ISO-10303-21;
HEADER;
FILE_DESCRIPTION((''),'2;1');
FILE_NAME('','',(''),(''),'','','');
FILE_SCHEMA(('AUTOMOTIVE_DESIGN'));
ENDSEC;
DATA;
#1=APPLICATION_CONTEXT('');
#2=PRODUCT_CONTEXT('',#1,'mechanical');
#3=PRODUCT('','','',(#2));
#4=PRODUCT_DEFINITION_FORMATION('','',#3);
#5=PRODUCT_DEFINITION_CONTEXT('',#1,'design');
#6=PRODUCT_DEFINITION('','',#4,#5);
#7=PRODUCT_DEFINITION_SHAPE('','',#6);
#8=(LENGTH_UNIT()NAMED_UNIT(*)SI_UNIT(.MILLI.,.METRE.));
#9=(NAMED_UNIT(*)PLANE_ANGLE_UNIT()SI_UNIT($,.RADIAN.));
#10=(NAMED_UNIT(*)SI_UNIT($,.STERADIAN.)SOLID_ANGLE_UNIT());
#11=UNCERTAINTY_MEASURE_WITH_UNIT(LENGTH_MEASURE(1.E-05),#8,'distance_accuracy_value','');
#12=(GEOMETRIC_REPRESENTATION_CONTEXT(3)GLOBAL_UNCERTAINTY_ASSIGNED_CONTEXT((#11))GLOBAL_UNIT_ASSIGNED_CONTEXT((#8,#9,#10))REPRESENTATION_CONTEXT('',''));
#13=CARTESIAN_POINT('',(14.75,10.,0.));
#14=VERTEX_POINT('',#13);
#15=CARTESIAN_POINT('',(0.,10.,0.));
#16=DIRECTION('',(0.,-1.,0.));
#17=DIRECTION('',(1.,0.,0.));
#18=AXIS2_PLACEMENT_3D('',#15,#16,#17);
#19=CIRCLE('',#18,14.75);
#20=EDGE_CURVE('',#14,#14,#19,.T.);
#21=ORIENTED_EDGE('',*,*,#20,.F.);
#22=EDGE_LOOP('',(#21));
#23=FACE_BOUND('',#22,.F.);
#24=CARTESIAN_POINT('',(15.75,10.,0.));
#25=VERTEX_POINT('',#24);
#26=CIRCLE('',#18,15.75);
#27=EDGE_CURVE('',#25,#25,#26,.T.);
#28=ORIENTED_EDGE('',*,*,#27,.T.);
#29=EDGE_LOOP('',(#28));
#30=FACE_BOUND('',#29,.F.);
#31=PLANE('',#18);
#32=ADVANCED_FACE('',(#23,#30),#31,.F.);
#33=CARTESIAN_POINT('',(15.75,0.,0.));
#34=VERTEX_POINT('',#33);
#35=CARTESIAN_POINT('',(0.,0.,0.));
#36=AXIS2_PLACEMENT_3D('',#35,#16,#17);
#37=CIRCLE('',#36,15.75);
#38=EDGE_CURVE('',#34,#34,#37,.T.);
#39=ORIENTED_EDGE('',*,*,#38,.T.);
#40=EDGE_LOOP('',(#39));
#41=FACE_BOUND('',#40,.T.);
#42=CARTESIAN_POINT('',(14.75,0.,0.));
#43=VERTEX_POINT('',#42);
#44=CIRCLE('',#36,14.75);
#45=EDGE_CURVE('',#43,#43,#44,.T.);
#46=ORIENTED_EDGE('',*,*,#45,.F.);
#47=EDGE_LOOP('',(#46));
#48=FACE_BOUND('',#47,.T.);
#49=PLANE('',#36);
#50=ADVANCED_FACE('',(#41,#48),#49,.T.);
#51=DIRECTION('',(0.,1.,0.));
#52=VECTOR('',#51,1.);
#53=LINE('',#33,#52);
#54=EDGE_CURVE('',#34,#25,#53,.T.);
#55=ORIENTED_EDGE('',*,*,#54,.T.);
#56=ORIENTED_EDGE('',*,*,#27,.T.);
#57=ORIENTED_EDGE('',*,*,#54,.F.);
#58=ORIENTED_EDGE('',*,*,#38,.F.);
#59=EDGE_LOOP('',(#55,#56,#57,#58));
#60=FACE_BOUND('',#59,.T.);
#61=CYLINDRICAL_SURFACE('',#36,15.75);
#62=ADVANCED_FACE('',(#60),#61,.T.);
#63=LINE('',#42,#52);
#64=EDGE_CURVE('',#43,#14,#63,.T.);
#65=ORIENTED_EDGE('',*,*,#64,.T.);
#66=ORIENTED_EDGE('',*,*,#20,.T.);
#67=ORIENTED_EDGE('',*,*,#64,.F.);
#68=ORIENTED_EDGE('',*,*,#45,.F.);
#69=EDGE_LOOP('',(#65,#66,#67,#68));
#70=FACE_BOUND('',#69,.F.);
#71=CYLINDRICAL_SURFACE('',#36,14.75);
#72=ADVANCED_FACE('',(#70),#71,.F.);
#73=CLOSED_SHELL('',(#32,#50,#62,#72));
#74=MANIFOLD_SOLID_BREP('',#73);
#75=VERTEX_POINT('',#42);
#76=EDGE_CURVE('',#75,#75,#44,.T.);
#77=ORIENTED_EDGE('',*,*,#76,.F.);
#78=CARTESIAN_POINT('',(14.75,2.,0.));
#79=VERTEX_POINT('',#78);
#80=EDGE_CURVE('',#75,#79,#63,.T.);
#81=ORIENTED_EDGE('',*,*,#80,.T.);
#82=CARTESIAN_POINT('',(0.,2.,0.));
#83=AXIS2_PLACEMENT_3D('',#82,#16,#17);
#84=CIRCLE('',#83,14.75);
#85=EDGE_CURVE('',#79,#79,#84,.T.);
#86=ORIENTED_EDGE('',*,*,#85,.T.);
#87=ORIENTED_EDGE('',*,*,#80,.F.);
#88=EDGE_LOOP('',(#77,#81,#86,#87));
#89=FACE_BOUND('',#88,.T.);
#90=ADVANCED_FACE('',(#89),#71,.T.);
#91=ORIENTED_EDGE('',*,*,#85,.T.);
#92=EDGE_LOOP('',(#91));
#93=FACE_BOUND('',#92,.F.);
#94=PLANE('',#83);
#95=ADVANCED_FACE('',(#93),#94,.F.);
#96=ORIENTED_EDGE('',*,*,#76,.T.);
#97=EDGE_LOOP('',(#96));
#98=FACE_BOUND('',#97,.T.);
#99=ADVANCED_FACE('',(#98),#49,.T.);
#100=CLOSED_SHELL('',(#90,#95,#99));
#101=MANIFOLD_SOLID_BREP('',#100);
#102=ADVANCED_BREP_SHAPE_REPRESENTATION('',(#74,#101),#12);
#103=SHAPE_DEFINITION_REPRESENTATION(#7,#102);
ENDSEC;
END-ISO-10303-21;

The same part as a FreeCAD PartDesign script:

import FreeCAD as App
import Part
import Sketcher
from FreeCAD import Vector

doc = App.newDocument("Part")
body = doc.addObject("PartDesign::Body", "Body")

# Sketch on XZ plane
sketch1 = doc.addObject("Sketcher::SketchObject", "Sketch")
body.addObject(sketch1)
sketch1.AttachmentSupport = (doc.XZ_Plane, [""])
sketch1.MapMode = "FlatFace"
sketch1.addGeometry(Part.Circle(Vector(0, 0, 0), Vector(0, 0, 1), 16), False)
sketch1.addGeometry(Part.Circle(Vector(0, 0, 0), Vector(0, 0, 1), 15), False)
sketch1.addConstraint(Sketcher.Constraint("Coincident", 0, 3, -1, 1))
sketch1.addConstraint(Sketcher.Constraint("Coincident", 1, 3, -1, 1))
sketch1.addConstraint(Sketcher.Constraint("Diameter", 0, 31.5))
sketch1.addConstraint(Sketcher.Constraint("Diameter", 1, 29.5))
pad1 = doc.addObject("PartDesign::Pad", "Pad")
body.addObject(pad1)
pad1.Profile = sketch1
pad1.Length = 10
pad1.Reversed = True

# Sketch on XZ plane
sketch2 = doc.addObject("Sketcher::SketchObject", "Sketch001")
body.addObject(sketch2)
sketch2.AttachmentSupport = (doc.XZ_Plane, [""])
sketch2.MapMode = "FlatFace"
sketch2.addGeometry(Part.Circle(Vector(0, 0, 0), Vector(0, 0, 1), 15), False)
sketch2.addConstraint(Sketcher.Constraint("Coincident", 0, 3, -1, 1))
sketch2.addConstraint(Sketcher.Constraint("Diameter", 0, 29.5))
pocket1 = doc.addObject("PartDesign::Pocket", "Pocket")
body.addObject(pocket1)
pocket1.Profile = sketch2
pocket1.Length = 8
pocket1.Reversed = True
body2 = doc.addObject("PartDesign::Body", "Body001")

# Sketch on XZ plane
sketch3 = doc.addObject("Sketcher::SketchObject", "Sketch002")
body2.addObject(sketch3)
sketch3.AttachmentSupport = (doc.getObject("XZ_Plane001"), [""])
sketch3.MapMode = "FlatFace"
sketch3.addGeometry(Part.Circle(Vector(0, 0, 0), Vector(0, 0, 1), 15), False)
sketch3.addConstraint(Sketcher.Constraint("Coincident", 0, 3, -1, 1))
sketch3.addConstraint(Sketcher.Constraint("Diameter", 0, 29.5))
pad2 = doc.addObject("PartDesign::Pad", "Pad001")
body2.addObject(pad2)
pad2.Profile = sketch3
pad2.Length = 2
pad2.Reversed = True

doc.recompute()
